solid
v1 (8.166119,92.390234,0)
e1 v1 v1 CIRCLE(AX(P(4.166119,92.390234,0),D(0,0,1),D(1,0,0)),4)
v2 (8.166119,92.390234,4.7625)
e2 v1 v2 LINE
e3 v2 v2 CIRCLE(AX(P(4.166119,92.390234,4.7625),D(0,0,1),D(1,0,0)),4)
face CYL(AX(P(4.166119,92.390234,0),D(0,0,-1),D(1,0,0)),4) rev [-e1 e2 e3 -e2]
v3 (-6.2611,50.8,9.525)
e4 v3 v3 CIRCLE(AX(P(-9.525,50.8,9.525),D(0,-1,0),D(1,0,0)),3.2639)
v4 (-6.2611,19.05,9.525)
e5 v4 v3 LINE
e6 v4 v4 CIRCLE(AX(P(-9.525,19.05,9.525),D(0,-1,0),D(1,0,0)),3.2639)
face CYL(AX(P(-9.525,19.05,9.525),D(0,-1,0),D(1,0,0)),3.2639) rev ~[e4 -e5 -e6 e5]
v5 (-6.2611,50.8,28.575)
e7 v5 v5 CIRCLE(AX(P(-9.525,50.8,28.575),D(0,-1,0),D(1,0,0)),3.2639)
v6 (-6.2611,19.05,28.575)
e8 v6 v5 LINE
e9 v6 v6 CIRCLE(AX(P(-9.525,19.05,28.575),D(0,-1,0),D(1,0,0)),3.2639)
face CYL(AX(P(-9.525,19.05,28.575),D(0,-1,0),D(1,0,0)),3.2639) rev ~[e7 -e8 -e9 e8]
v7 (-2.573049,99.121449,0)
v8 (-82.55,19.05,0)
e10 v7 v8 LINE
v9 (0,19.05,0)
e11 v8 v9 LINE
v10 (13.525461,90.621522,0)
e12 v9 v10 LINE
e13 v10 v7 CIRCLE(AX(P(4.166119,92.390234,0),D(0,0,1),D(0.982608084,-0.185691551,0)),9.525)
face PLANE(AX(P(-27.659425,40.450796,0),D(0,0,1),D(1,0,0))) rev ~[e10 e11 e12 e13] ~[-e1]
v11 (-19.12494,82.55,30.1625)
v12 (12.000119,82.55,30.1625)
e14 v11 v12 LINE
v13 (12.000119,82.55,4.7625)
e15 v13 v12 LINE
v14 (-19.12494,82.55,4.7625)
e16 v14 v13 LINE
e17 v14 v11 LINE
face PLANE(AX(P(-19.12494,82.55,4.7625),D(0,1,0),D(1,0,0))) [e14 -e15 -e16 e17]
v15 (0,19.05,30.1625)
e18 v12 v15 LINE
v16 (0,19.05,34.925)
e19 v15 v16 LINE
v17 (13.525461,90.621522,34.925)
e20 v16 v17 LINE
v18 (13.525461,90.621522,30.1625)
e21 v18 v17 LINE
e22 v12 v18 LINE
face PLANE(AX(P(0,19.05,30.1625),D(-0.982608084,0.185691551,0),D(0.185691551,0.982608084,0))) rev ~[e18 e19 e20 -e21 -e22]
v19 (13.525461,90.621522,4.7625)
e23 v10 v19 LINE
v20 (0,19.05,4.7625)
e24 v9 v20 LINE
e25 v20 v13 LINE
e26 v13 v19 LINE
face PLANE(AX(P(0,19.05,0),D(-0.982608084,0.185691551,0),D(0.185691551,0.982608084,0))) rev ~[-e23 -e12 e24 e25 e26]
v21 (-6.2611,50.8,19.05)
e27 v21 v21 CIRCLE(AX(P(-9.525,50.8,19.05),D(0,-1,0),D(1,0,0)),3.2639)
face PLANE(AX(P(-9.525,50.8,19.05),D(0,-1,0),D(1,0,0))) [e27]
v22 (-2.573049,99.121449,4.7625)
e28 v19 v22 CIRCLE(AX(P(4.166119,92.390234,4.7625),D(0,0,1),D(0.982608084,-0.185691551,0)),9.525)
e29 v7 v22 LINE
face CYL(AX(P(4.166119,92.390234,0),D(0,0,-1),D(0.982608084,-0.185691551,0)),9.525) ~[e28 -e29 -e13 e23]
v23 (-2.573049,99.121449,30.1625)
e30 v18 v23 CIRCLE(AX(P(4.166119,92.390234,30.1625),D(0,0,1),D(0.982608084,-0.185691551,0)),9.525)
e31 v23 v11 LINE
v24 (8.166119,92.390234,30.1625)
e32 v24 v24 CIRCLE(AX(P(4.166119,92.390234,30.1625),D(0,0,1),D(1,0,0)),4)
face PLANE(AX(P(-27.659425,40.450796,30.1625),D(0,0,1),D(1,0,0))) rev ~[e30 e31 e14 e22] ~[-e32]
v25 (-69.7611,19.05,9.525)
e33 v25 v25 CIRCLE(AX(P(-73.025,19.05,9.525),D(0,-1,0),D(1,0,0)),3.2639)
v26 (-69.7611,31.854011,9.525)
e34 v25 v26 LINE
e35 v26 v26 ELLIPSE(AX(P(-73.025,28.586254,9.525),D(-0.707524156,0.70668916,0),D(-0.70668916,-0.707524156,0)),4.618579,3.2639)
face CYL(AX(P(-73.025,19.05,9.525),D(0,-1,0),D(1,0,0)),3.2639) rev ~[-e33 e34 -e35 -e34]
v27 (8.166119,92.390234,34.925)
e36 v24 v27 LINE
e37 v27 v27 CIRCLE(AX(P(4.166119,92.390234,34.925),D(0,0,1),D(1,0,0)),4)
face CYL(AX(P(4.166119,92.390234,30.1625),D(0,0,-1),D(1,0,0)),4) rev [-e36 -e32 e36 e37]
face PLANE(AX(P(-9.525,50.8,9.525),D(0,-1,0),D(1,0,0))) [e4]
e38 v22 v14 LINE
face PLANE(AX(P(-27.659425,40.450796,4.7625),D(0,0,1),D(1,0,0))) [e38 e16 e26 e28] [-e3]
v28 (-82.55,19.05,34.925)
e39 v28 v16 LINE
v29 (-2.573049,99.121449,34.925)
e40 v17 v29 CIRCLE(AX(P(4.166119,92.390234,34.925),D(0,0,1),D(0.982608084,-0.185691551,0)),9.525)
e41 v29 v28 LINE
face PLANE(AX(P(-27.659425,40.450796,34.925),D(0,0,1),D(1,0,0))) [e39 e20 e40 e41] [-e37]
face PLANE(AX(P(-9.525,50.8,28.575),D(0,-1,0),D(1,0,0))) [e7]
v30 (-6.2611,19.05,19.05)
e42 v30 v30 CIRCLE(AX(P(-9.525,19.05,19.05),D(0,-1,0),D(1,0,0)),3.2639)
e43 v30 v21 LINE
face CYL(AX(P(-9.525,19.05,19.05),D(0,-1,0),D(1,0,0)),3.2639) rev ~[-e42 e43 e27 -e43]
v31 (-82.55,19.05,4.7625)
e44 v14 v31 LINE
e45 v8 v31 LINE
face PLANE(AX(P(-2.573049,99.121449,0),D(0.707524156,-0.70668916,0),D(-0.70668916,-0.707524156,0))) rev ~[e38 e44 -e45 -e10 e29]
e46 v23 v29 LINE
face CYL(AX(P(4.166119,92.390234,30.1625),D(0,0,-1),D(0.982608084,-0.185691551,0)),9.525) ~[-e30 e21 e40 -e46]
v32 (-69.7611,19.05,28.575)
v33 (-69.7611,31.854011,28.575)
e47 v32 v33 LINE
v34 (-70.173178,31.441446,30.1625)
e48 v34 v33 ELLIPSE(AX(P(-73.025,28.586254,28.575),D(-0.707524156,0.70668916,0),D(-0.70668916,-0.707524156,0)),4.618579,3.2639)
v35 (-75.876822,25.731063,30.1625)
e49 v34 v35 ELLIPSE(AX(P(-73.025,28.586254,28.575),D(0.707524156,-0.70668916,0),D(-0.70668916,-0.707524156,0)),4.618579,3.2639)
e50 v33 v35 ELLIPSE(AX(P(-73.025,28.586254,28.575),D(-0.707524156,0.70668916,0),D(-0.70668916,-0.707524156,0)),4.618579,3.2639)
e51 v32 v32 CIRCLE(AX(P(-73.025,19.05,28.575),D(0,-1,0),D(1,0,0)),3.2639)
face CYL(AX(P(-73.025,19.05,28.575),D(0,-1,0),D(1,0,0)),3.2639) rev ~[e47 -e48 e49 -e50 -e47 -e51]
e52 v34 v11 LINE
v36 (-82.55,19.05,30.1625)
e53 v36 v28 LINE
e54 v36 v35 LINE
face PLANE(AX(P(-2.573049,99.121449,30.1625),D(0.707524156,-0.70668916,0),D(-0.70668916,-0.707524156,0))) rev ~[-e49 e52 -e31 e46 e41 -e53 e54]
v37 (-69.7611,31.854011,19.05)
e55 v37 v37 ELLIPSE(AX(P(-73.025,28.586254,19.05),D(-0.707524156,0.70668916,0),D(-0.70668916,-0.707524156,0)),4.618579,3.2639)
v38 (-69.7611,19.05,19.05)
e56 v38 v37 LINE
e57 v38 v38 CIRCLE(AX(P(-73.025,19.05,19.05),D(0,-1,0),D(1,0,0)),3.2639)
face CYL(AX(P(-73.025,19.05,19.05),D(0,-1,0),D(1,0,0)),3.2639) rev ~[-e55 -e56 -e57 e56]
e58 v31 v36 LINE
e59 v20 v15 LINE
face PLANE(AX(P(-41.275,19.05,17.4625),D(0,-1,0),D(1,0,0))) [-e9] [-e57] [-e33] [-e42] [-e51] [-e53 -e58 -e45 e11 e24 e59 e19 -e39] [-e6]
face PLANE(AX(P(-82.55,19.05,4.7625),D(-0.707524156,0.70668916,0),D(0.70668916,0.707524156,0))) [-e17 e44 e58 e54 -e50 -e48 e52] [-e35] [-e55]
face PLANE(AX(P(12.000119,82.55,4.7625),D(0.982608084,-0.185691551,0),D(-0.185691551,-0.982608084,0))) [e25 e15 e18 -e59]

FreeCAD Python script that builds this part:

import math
import FreeCAD as App
import Part
import Sketcher

V = App.Vector
Q = App.Units.Quantity

doc = App.newDocument("Part")
body = doc.addObject("PartDesign::Body", "Body")

# Sketch on XY plane
sketch1 = body.newObject("Sketcher::SketchObject", "Sketch")
sketch1.AttachmentSupport = (doc.getObject("XY_Plane"), [""])
sketch1.MapMode = "FlatFace"
sketch1.addGeometry([
    Part.LineSegment(V(0, 0, 0), V(0, 19.1, 0)),  # 0
    Part.LineSegment(V(0, 19.1, 0), V(13.5, 90.6, 0)),  # 1
    Part.ArcOfCircle(Part.Circle(V(4.2, 92.4, 0), V(0, 0, 1), 9.5), math.radians(-11), math.radians(135)),  # 2
    Part.LineSegment(V(-2.6, 99.1, 0), V(-82.5, 19.1, 0)),  # 3
    Part.LineSegment(V(-82.5, 19.1, 0), V(-82.5, 0, 0)),  # 4
    Part.LineSegment(V(-82.5, 0, 0), V(0, 0, 0)),  # 5
    Part.Circle(V(-73, 9.5, 0), V(0, 0, 1), 4),  # 6
    Part.Circle(V(-9.5, 9.5, 0), V(0, 0, 1), 4),  # 7
    Part.Circle(V(4.2, 92.4, 0), V(0, 0, 1), 4),  # 8
], False)
sketch1.addConstraint([
    Sketcher.Constraint("Coincident", 0, 2, 1, 1),
    Sketcher.Constraint("Tangent", 1, 2, 2, 1),
    Sketcher.Constraint("Tangent", 2, 2, 3, 1),
    Sketcher.Constraint("Coincident", 3, 2, 4, 1),
    Sketcher.Constraint("Coincident", 4, 2, 5, 1),
    Sketcher.Constraint("Coincident", 5, 2, 0, 1),
    Sketcher.Constraint("Vertical", 0),
    Sketcher.Constraint("Vertical", 4),
    Sketcher.Constraint("Horizontal", 5),
    Sketcher.Constraint("Coincident", 5, 2, -1, 1),
    Sketcher.Constraint("Coincident", 8, 3, 2, 3),
    Sketcher.Constraint("Equal", 6, 7),
    Sketcher.Constraint("Equal", 7, 8),
    Sketcher.Constraint("Horizontal", 6, 3, 7, 3),
    Sketcher.Constraint("Horizontal", 0, 2, 3, 2),
    Sketcher.Constraint("Radius", 2, Q("0.375 in")),
    Sketcher.Constraint("DistanceX", 5, 1, 5, 2, Q("3.25 in")),
    Sketcher.Constraint("DistanceY", 0, 1, 0, 2, Q("0.75 in")),
    Sketcher.Constraint("DistanceX", 6, 3, 7, 3, Q("2.5 in")),
    Sketcher.Constraint("Diameter", 6, Q("8 mm")),
    Sketcher.Constraint("DistanceX", 6, 3, -1, 1, Q("2.875 in")),
    Sketcher.Constraint("DistanceY", -1, 1, 6, 3, Q("0.375 in")),
    Sketcher.Constraint("Distance", 1, Q("72.83832 mm")),
    Sketcher.Constraint("Distance", 3, Q("113.171329 mm")),
])
pad1 = body.newObject("PartDesign::Pad", "Pad")
pad1.Profile = sketch1
pad1.Length = Q("0.1875 in")

# Sketch on XY plane
sketch2 = body.newObject("Sketcher::SketchObject", "Sketch001")
sketch2.AttachmentSupport = (doc.getObject("XY_Plane"), [""])
sketch2.MapMode = "FlatFace"
sketch2.AttachmentOffset = App.Placement(V(0, 0, 0.1875 * 25.4), App.Rotation())
sketch2.addGeometry([
    Part.LineSegment(V(12, 82.5, 0), V(-19.1, 82.5, 0)),  # 0
    Part.LineSegment(V(-19.1, 82.5, 0), V(-82.5, 19.1, 0)),  # 1
    Part.LineSegment(V(-82.5, 19.1, 0), V(-82.5, 0, 0)),  # 2
    Part.LineSegment(V(-82.5, 0, 0), V(0, 0, 0)),  # 3
    Part.LineSegment(V(0, 0, 0), V(0, 19.1, 0)),  # 4
    Part.LineSegment(V(0, 19.1, 0), V(12, 82.5, 0)),  # 5
    Part.Circle(V(-9.5, 9.5, 0), V(0, 0, 1), 4),  # 6
    Part.Circle(V(-73, 9.5, 0), V(0, 0, 1), 4),  # 7
], False)
sketch2.addConstraint([
    Sketcher.Constraint("Coincident", 0, 2, 1, 1),
    Sketcher.Constraint("Coincident", 1, 2, 2, 1),
    Sketcher.Constraint("Coincident", 2, 2, 3, 1),
    Sketcher.Constraint("Coincident", 3, 2, 4, 1),
    Sketcher.Constraint("Coincident", 4, 2, 5, 1),
    Sketcher.Constraint("Coincident", 5, 2, 0, 1),
    Sketcher.Constraint("Horizontal", 0),
    Sketcher.Constraint("Vertical", 2),
    Sketcher.Constraint("Horizontal", 3),
    Sketcher.Constraint("Vertical", 4),
    Sketcher.Constraint("Coincident", 3, 2, -1, 1),
    Sketcher.Constraint("Equal", 6, 7),
    Sketcher.Constraint("Horizontal", 6, 3, 7, 3),
    Sketcher.Constraint("Horizontal", 1, 2, 4, 2),
    Sketcher.Constraint("DistanceX", 3, 1, 3, 2, Q("3.25 in")),
    Sketcher.Constraint("DistanceY", 2, 2, 2, 1, Q("0.75 in")),
    Sketcher.Constraint("DistanceX", 7, 3, 6, 3, Q("2.5 in")),
    Sketcher.Constraint("DistanceY", 1, 2, 0, 2, Q("2.5 in")),
    Sketcher.Constraint("Diameter", 6, Q("8 mm")),
    Sketcher.Constraint("DistanceX", 6, 3, -1, 1, Q("0.375 in")),
    Sketcher.Constraint("DistanceY", -1, 1, 6, 3, Q("0.375 in")),
    Sketcher.Constraint("DistanceX", 0, 2, 0, 1, Q("31.125059 mm")),
    Sketcher.Constraint("DistanceX", 0, 2, -1, 1, Q("19.12494 mm")),
])
pad2 = body.newObject("PartDesign::Pad", "Pad001")
pad2.Profile = sketch2
pad2.Length = Q("1 in")

# Sketch on XY plane
sketch3 = body.newObject("Sketcher::SketchObject", "Sketch002")
sketch3.AttachmentSupport = (doc.getObject("XY_Plane"), [""])
sketch3.MapMode = "FlatFace"
sketch3.AttachmentOffset = App.Placement(V(0, 0, 1.1875 * 25.4), App.Rotation())
sketch3.addGeometry([
    Part.LineSegment(V(0, 0, 0), V(0, 19.1, 0)),  # 0
    Part.LineSegment(V(0, 19.1, 0), V(13.5, 90.6, 0)),  # 1
    Part.ArcOfCircle(Part.Circle(V(4.2, 92.4, 0), V(0, 0, 1), 9.5), math.radians(-11), math.radians(135)),  # 2
    Part.LineSegment(V(-2.6, 99.1, 0), V(-82.5, 19.1, 0)),  # 3
    Part.LineSegment(V(-82.5, 19.1, 0), V(-82.5, 0, 0)),  # 4
    Part.LineSegment(V(-82.5, 0, 0), V(0, 0, 0)),  # 5
    Part.Circle(V(-73, 9.5, 0), V(0, 0, 1), 4),  # 6
    Part.Circle(V(-9.5, 9.5, 0), V(0, 0, 1), 4),  # 7
    Part.Circle(V(4.2, 92.4, 0), V(0, 0, 1), 4),  # 8
], False)
sketch3.addConstraint([
    Sketcher.Constraint("Coincident", 0, 2, 1, 1),
    Sketcher.Constraint("Tangent", 1, 2, 2, 1),
    Sketcher.Constraint("Tangent", 2, 2, 3, 1),
    Sketcher.Constraint("Coincident", 3, 2, 4, 1),
    Sketcher.Constraint("Coincident", 4, 2, 5, 1),
    Sketcher.Constraint("Coincident", 5, 2, 0, 1),
    Sketcher.Constraint("Vertical", 0),
    Sketcher.Constraint("Vertical", 4),
    Sketcher.Constraint("Horizontal", 5),
    Sketcher.Constraint("Coincident", 5, 2, -1, 1),
    Sketcher.Constraint("Coincident", 8, 3, 2, 3),
    Sketcher.Constraint("Equal", 6, 7),
    Sketcher.Constraint("Equal", 7, 8),
    Sketcher.Constraint("Horizontal", 6, 3, 7, 3),
    Sketcher.Constraint("Horizontal", 0, 2, 3, 2),
    Sketcher.Constraint("Radius", 2, Q("0.375 in")),
    Sketcher.Constraint("DistanceX", 5, 1, 5, 2, Q("3.25 in")),
    Sketcher.Constraint("DistanceY", 0, 1, 0, 2, Q("0.75 in")),
    Sketcher.Constraint("DistanceX", 6, 3, 7, 3, Q("2.5 in")),
    Sketcher.Constraint("Diameter", 6, Q("8 mm")),
    Sketcher.Constraint("DistanceX", 6, 3, -1, 1, Q("2.875 in")),
    Sketcher.Constraint("DistanceY", -1, 1, 6, 3, Q("0.375 in")),
    Sketcher.Constraint("Distance", 1, Q("72.83832 mm")),
    Sketcher.Constraint("Distance", 3, Q("113.171329 mm")),
])
pad3 = body.newObject("PartDesign::Pad", "Pad002")
pad3.Profile = sketch3
pad3.Length = Q("0.1875 in")

# Sketch on XZ plane
sketch4 = body.newObject("Sketcher::SketchObject", "Sketch003")
sketch4.AttachmentSupport = (doc.getObject("XZ_Plane"), [""])
sketch4.MapMode = "FlatFace"
sketch4.addGeometry([
    Part.LineSegment(V(-83, 35, 0), V(-83, 0, 0)),
    Part.LineSegment(V(-83, 0, 0), V(0, 0, 0)),
    Part.LineSegment(V(0, 0, 0), V(0, 35, 0)),
    Part.LineSegment(V(0, 35, 0), V(-83, 35, 0)),
], False)
sketch4.addConstraint([
    Sketcher.Constraint("Coincident", 0, 2, 1, 1),
    Sketcher.Constraint("Coincident", 1, 2, 2, 1),
    Sketcher.Constraint("Coincident", 2, 2, 3, 1),
    Sketcher.Constraint("Coincident", 3, 2, 0, 1),
    Sketcher.Constraint("Vertical", 0),
    Sketcher.Constraint("Horizontal", 1),
    Sketcher.Constraint("Vertical", 2),
    Sketcher.Constraint("Horizontal", 3),
    Sketcher.Constraint("Coincident", 1, 2, -1, 1),
    Sketcher.Constraint("DistanceX", 1, 1, 1, 2, Q("3.25 in")),
    Sketcher.Constraint("DistanceY", 0, 2, 0, 1, Q("1.375 in")),
])
pocket1 = body.newObject("PartDesign::Pocket", "Pocket")
pocket1.Profile = sketch4
pocket1.Length = Q("0.75 in")

# Sketch on XZ plane
sketch5 = body.newObject("Sketcher::SketchObject", "Sketch004")
sketch5.AttachmentSupport = (doc.getObject("XZ_Plane"), [""])
sketch5.MapMode = "FlatFace"
sketch5.AttachmentOffset = App.Placement(V(0, 0, -0.75 * 25.4), App.Rotation())
sketch5.addGeometry([
    Part.Circle(V(-9.5, 9.5, 0), V(0, 0, 1), 3.3),  # 0
    Part.Circle(V(-73, 9.5, 0), V(0, 0, 1), 3.3),  # 1
    Part.Circle(V(-73, 28.6, 0), V(0, 0, 1), 3.3),  # 2
    Part.Circle(V(-9.5, 28.6, 0), V(0, 0, 1), 3.3),  # 3
    Part.Circle(V(-73, 19.1, 0), V(0, 0, 1), 3.3),  # 4
    Part.Circle(V(-9.5, 19.1, 0), V(0, 0, 1), 3.3),  # 5
], False)
sketch5.addConstraint([
    Sketcher.Constraint("Equal", 0, 1),
    Sketcher.Constraint("Equal", 1, 2),
    Sketcher.Constraint("Equal", 2, 3),
    Sketcher.Constraint("Equal", 3, 4),
    Sketcher.Constraint("Equal", 4, 5),
    Sketcher.Constraint("Horizontal", 0, 3, 1, 3),
    Sketcher.Constraint("Horizontal", 2, 3, 3, 3),
    Sketcher.Constraint("Horizontal", 4, 3, 5, 3),
    Sketcher.Constraint("Vertical", 1, 3, 2, 3),
    Sketcher.Constraint("Vertical", 0, 3, 3, 3),
    Sketcher.Constraint("Vertical", 2, 3, 4, 3),
    Sketcher.Constraint("Vertical", 3, 3, 5, 3),
    Sketcher.Constraint("Diameter", 0, Q("0.257 in")),
    Sketcher.Constraint("DistanceX", 1, 3, 0, 3, Q("2.5 in")),
    Sketcher.Constraint("DistanceY", -1, 1, 4, 3, Q("0.75 in")),
    Sketcher.Constraint("DistanceY", 1, 3, 2, 3, Q("0.75 in")),
    Sketcher.Constraint("DistanceX", 0, 3, -1, 1, Q("0.375 in")),
    Sketcher.Constraint("DistanceY", -1, 1, 0, 3, Q("0.375 in")),
])
pocket2 = body.newObject("PartDesign::Pocket", "Pocket001")
pocket2.Profile = sketch5
pocket2.Length = Q("1.25 in")

doc.recompute()
